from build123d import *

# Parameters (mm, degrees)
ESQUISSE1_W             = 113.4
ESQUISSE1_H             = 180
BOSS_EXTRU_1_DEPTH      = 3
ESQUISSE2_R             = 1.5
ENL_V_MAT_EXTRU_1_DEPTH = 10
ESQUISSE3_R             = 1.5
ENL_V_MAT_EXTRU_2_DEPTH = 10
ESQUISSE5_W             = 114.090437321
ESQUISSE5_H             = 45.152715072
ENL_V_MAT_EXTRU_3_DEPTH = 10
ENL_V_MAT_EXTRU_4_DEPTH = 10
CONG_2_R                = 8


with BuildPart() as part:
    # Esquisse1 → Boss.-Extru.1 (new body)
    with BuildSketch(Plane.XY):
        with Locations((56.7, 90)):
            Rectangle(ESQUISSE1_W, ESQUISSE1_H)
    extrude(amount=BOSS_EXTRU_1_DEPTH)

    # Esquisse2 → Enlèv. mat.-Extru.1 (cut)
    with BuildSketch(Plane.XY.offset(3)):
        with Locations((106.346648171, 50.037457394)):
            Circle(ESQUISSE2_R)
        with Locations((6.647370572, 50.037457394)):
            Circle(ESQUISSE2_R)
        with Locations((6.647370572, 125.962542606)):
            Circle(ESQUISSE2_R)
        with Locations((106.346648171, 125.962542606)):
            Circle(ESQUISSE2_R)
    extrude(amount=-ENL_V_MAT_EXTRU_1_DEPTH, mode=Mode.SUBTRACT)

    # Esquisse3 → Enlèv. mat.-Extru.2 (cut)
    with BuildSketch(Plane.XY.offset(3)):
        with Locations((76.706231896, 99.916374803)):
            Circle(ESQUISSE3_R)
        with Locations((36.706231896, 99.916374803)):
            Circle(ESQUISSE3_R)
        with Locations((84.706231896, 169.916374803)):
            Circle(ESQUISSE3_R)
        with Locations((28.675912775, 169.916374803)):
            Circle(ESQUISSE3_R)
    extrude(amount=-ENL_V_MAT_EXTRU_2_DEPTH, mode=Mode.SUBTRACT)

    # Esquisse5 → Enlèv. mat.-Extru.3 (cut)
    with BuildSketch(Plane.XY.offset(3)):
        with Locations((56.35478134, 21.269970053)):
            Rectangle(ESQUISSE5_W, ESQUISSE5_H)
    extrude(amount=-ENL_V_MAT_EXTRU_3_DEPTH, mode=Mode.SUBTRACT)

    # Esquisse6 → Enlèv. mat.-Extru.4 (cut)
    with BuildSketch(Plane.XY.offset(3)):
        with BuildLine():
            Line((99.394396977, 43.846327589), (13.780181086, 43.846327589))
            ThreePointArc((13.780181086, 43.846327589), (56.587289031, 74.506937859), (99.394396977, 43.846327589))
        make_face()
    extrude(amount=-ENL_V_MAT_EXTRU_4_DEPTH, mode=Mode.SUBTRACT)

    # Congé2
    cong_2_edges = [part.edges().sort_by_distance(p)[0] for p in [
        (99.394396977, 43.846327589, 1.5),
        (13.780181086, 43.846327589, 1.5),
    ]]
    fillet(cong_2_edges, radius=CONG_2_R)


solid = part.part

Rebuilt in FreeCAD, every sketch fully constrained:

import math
import FreeCAD as App
import Part
import Sketcher
Q = App.Units.Quantity


def edges_at(feature, points):
    """Names of the edges that pass closest to the given points."""
    edges = feature.Shape.Edges
    near = lambda p: min(range(len(edges)), key=lambda i: edges[i].distToShape(Part.Vertex(*p))[0])
    return sorted({f"Edge{near(p) + 1}" for p in points})


def add_polygon(sketch, points):
    """Adds a closed chain of lines whose ends are joined by coincident constraints."""
    first, n = sketch.GeometryCount, len(points)
    for a, b in zip(points, points[1:] + points[:1]):
        sketch.addGeometry(Part.LineSegment(App.Vector(*a, 0), App.Vector(*b, 0)), False)
    for i in range(n):
        sketch.addConstraint(Sketcher.Constraint("Coincident", first + i, 2, first + (i + 1) % n, 1))

doc = App.newDocument("Part")
params = doc.addObject("Spreadsheet::Sheet", "Params")
for row, (alias, value) in enumerate([
    ("sketch1_height", "180 mm"),
    ("sketch1_width", "113.4 mm"),
    ("pad1_length", "3 mm"),
    ("sketch2_diameter", "3 mm"),
    ("pocket1_length", "10 mm"),
    ("sketch3_diameter", "3 mm"),
    ("pocket2_length", "10 mm"),
    ("pocket3_length", "10 mm"),
    ("pocket4_length", "10 mm"),
    ("fillet_radius", "8 mm"),
], start=1):
    params.set(f"A{row}", alias)
    params.set(f"B{row}", "=" + value)
    params.setAlias(f"B{row}", alias)

body = doc.addObject("PartDesign::Body", "Body")

# Sketch on XY plane
sketch1 = body.newObject("Sketcher::SketchObject", "Sketch")
sketch1.AttachmentSupport = (doc.getObject("XY_Plane"), [""])
sketch1.MapMode = "FlatFace"
add_polygon(sketch1, [(0, 180), (0, 0), (113, 0), (113, 180)])  # lines 0-3
sketch1.addConstraint(Sketcher.Constraint("Vertical", 0))
sketch1.addConstraint(Sketcher.Constraint("Horizontal", 1))
sketch1.addConstraint(Sketcher.Constraint("Vertical", 2))
sketch1.addConstraint(Sketcher.Constraint("Horizontal", 3))
sketch1.addConstraint(Sketcher.Constraint("Coincident", 0, 2, -1, 1))
sketch1.addConstraint(Sketcher.Constraint("DistanceY", 0, 2, 0, 1, Q("180 mm")))
sketch1.addConstraint(Sketcher.Constraint("DistanceX", 1, 1, 1, 2, Q("113.4 mm")))
sketch1.setExpression("Constraints[9]", "Params.sketch1_height")
sketch1.setExpression("Constraints[10]", "Params.sketch1_width")
pad1 = body.newObject("PartDesign::Pad", "Pad")
pad1.Profile = sketch1
pad1.setExpression("Length", "Params.pad1_length")

# Sketch on XY plane
sketch2 = body.newObject("Sketcher::SketchObject", "Sketch001")
sketch2.AttachmentSupport = (doc.getObject("XY_Plane"), [""])
sketch2.MapMode = "FlatFace"
sketch2.AttachmentOffset = App.Placement(App.Vector(0, 0, 3), App.Rotation())
sketch2.addGeometry(Part.Circle(App.Vector(106.3, 50, 0), App.Vector(0, 0, 1), 1.5), False)
sketch2.addGeometry(Part.Circle(App.Vector(6.6, 50, 0), App.Vector(0, 0, 1), 1.5), False)
sketch2.addGeometry(Part.Circle(App.Vector(6.6, 126, 0), App.Vector(0, 0, 1), 1.5), False)
sketch2.addGeometry(Part.Circle(App.Vector(106.3, 126, 0), App.Vector(0, 0, 1), 1.5), False)
sketch2.addConstraint(Sketcher.Constraint("Equal", 0, 1))
sketch2.addConstraint(Sketcher.Constraint("Equal", 1, 2))
sketch2.addConstraint(Sketcher.Constraint("Equal", 2, 3))
sketch2.addConstraint(Sketcher.Constraint("Horizontal", 0, 3, 1, 3))
sketch2.addConstraint(Sketcher.Constraint("Horizontal", 2, 3, 3, 3))
sketch2.addConstraint(Sketcher.Constraint("Vertical", 1, 3, 2, 3))
sketch2.addConstraint(Sketcher.Constraint("Vertical", 0, 3, 3, 3))
sketch2.addConstraint(Sketcher.Constraint("Diameter", 0, Q("3 mm")))
sketch2.addConstraint(Sketcher.Constraint("DistanceX", -1, 1, 0, 3, Q("106.346648 mm")))
sketch2.addConstraint(Sketcher.Constraint("DistanceX", -1, 1, 1, 3, Q("6.647371 mm")))
sketch2.addConstraint(Sketcher.Constraint("DistanceY", -1, 1, 0, 3, Q("50.037457 mm")))
sketch2.addConstraint(Sketcher.Constraint("DistanceY", -1, 1, 2, 3, Q("125.962543 mm")))
sketch2.setExpression("Constraints[7]", "Params.sketch2_diameter")
pocket1 = body.newObject("PartDesign::Pocket", "Pocket")
pocket1.Profile = sketch2
pocket1.setExpression("Length", "Params.pocket1_length")

# Sketch on XY plane
sketch3 = body.newObject("Sketcher::SketchObject", "Sketch002")
sketch3.AttachmentSupport = (doc.getObject("XY_Plane"), [""])
sketch3.MapMode = "FlatFace"
sketch3.AttachmentOffset = App.Placement(App.Vector(0, 0, 3), App.Rotation())
sketch3.addGeometry(Part.Circle(App.Vector(76.7, 99.9, 0), App.Vector(0, 0, 1), 1.5), False)
sketch3.addGeometry(Part.Circle(App.Vector(36.7, 99.9, 0), App.Vector(0, 0, 1), 1.5), False)
sketch3.addGeometry(Part.Circle(App.Vector(84.7, 169.9, 0), App.Vector(0, 0, 1), 1.5), False)
sketch3.addGeometry(Part.Circle(App.Vector(28.7, 169.9, 0), App.Vector(0, 0, 1), 1.5), False)
sketch3.addConstraint(Sketcher.Constraint("Equal", 0, 1))
sketch3.addConstraint(Sketcher.Constraint("Equal", 1, 2))
sketch3.addConstraint(Sketcher.Constraint("Equal", 2, 3))
sketch3.addConstraint(Sketcher.Constraint("Horizontal", 0, 3, 1, 3))
sketch3.addConstraint(Sketcher.Constraint("Horizontal", 2, 3, 3, 3))
sketch3.addConstraint(Sketcher.Constraint("Diameter", 0, Q("3 mm")))
sketch3.addConstraint(Sketcher.Constraint("DistanceX", 1, 3, 0, 3, Q("40 mm")))
sketch3.addConstraint(Sketcher.Constraint("DistanceX", 0, 3, 2, 3, Q("8 mm")))
sketch3.addConstraint(Sketcher.Constraint("DistanceY", 0, 3, 2, 3, Q("70 mm")))
sketch3.addConstraint(Sketcher.Constraint("DistanceX", -1, 1, 0, 3, Q("76.706232 mm")))
sketch3.addConstraint(Sketcher.Constraint("DistanceX", 3, 3, 2, 3, Q("56.030319 mm")))
sketch3.addConstraint(Sketcher.Constraint("DistanceY", -1, 1, 0, 3, Q("99.916375 mm")))
sketch3.setExpression("Constraints[5]", "Params.sketch3_diameter")
pocket2 = body.newObject("PartDesign::Pocket", "Pocket001")
pocket2.Profile = sketch3
pocket2.setExpression("Length", "Params.pocket2_length")

# Sketch on XY plane
sketch4 = body.newObject("Sketcher::SketchObject", "Sketch003")
sketch4.AttachmentSupport = (doc.getObject("XY_Plane"), [""])
sketch4.MapMode = "FlatFace"
sketch4.AttachmentOffset = App.Placement(App.Vector(0, 0, 3), App.Rotation())
add_polygon(sketch4, [(-1, 44), (-1, -1), (113, -1), (113, 44)])  # lines 0-3
sketch4.addConstraint(Sketcher.Constraint("Vertical", 0))
sketch4.addConstraint(Sketcher.Constraint("Horizontal", 1))
sketch4.addConstraint(Sketcher.Constraint("Vertical", 2))
sketch4.addConstraint(Sketcher.Constraint("Horizontal", 3))
sketch4.addConstraint(Sketcher.Constraint("DistanceX", -1, 1, 1, 2, Q("113.4 mm")))
sketch4.addConstraint(Sketcher.Constraint("DistanceX", 1, 1, 1, 2, Q("114.090437 mm")))
sketch4.addConstraint(Sketcher.Constraint("DistanceY", 0, 2, 0, 1, Q("45.152715 mm")))
sketch4.addConstraint(Sketcher.Constraint("DistanceY", 0, 2, -1, 1, Q("1.306387 mm")))
pocket3 = body.newObject("PartDesign::Pocket", "Pocket002")
pocket3.Profile = sketch4
pocket3.setExpression("Length", "Params.pocket3_length")

# Sketch on XY plane
sketch5 = body.newObject("Sketcher::SketchObject", "Sketch004")
sketch5.AttachmentSupport = (doc.getObject("XY_Plane"), [""])
sketch5.MapMode = "FlatFace"
sketch5.AttachmentOffset = App.Placement(App.Vector(0, 0, 3), App.Rotation())
sketch5.addGeometry(Part.LineSegment(App.Vector(14, 44, 0), App.Vector(99, 44, 0)), False)
sketch5.addGeometry(Part.ArcOfCircle(Part.Circle(App.Vector(57, 29, 0), App.Vector(0, 0, 1), 45), math.radians(19), math.radians(161)), False)
sketch5.addConstraint(Sketcher.Constraint("Coincident", 0, 1, 1, 2))
sketch5.addConstraint(Sketcher.Constraint("Coincident", 1, 1, 0, 2))
sketch5.addConstraint(Sketcher.Constraint("Horizontal", 0))
sketch5.addConstraint(Sketcher.Constraint("Radius", 1, Q("45.213084 mm")))
sketch5.addConstraint(Sketcher.Constraint("DistanceX", 0, 1, 0, 2, Q("85.614216 mm")))
sketch5.addConstraint(Sketcher.Constraint("DistanceX", -1, 1, 1, 3, Q("56.587289 mm")))
sketch5.addConstraint(Sketcher.Constraint("DistanceY", -1, 1, 1, 3, Q("29.293854 mm")))
pocket4 = body.newObject("PartDesign::Pocket", "Pocket003")
pocket4.Profile = sketch5
pocket4.setExpression("Length", "Params.pocket4_length")
doc.recompute()

fillet = body.newObject("PartDesign::Fillet", "Fillet")
fillet.Base = (pocket4, edges_at(pocket4, [(99.394, 43.846, 1.5), (13.78, 43.846, 1.5)]))
fillet.setExpression("Radius", "Params.fillet_radius")

doc.recompute()
